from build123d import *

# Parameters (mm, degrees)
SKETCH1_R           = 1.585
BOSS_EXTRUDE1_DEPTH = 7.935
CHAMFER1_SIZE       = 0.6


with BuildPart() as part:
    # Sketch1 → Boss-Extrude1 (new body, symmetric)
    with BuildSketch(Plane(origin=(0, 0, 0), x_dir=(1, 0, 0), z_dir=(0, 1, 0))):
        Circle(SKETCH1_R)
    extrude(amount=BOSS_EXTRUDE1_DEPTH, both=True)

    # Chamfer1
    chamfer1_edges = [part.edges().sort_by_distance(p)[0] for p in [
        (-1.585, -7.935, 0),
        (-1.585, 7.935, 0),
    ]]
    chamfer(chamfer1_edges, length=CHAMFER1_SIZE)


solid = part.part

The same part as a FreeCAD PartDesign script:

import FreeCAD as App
import Part
import Sketcher
Q = App.Units.Quantity


def edges_at(feature, points):
    """Names of the edges that pass closest to the given points."""
    edges = feature.Shape.Edges
    near = lambda p: min(range(len(edges)), key=lambda i: edges[i].distToShape(Part.Vertex(*p))[0])
    return sorted({f"Edge{near(p) + 1}" for p in points})

doc = App.newDocument("Part")
params = doc.addObject("Spreadsheet::Sheet", "Params")
for row, (alias, value) in enumerate([
    ("sketch1_diameter", "3.17 mm"),
    ("pad1_length", "15.87 mm"),
    ("chamfer_size", "0.6 mm"),
], start=1):
    params.set(f"A{row}", alias)
    params.set(f"B{row}", "=" + value)
    params.setAlias(f"B{row}", alias)

body = doc.addObject("PartDesign::Body", "Body")

sketch1 = body.newObject("Sketcher::SketchObject", "Sketch")
sketch1.AttachmentSupport = (doc.getObject("XZ_Plane"), [""])
sketch1.MapMode = "FlatFace"
sketch1.addGeometry(Part.Circle(App.Vector(0, 0, 0), App.Vector(0, 0, 1), 1.6), False)
sketch1.addConstraint(Sketcher.Constraint("Coincident", 0, 3, -1, 1))
sketch1.addConstraint(Sketcher.Constraint("Diameter", 0, Q("3.17 mm")))
sketch1.setExpression("Constraints[1]", "Params.sketch1_diameter")
pad1 = body.newObject("PartDesign::Pad", "Pad")
pad1.Profile = sketch1
pad1.setExpression("Length", "Params.pad1_length")
pad1.Midplane = True
doc.recompute()

chamfer = body.newObject("PartDesign::Chamfer", "Chamfer")
chamfer.Base = (pad1, edges_at(pad1, [(-1.585, -7.935, 0), (-1.585, 7.935, 0)]))
chamfer.setExpression("Size", "Params.chamfer_size")

doc.recompute()
